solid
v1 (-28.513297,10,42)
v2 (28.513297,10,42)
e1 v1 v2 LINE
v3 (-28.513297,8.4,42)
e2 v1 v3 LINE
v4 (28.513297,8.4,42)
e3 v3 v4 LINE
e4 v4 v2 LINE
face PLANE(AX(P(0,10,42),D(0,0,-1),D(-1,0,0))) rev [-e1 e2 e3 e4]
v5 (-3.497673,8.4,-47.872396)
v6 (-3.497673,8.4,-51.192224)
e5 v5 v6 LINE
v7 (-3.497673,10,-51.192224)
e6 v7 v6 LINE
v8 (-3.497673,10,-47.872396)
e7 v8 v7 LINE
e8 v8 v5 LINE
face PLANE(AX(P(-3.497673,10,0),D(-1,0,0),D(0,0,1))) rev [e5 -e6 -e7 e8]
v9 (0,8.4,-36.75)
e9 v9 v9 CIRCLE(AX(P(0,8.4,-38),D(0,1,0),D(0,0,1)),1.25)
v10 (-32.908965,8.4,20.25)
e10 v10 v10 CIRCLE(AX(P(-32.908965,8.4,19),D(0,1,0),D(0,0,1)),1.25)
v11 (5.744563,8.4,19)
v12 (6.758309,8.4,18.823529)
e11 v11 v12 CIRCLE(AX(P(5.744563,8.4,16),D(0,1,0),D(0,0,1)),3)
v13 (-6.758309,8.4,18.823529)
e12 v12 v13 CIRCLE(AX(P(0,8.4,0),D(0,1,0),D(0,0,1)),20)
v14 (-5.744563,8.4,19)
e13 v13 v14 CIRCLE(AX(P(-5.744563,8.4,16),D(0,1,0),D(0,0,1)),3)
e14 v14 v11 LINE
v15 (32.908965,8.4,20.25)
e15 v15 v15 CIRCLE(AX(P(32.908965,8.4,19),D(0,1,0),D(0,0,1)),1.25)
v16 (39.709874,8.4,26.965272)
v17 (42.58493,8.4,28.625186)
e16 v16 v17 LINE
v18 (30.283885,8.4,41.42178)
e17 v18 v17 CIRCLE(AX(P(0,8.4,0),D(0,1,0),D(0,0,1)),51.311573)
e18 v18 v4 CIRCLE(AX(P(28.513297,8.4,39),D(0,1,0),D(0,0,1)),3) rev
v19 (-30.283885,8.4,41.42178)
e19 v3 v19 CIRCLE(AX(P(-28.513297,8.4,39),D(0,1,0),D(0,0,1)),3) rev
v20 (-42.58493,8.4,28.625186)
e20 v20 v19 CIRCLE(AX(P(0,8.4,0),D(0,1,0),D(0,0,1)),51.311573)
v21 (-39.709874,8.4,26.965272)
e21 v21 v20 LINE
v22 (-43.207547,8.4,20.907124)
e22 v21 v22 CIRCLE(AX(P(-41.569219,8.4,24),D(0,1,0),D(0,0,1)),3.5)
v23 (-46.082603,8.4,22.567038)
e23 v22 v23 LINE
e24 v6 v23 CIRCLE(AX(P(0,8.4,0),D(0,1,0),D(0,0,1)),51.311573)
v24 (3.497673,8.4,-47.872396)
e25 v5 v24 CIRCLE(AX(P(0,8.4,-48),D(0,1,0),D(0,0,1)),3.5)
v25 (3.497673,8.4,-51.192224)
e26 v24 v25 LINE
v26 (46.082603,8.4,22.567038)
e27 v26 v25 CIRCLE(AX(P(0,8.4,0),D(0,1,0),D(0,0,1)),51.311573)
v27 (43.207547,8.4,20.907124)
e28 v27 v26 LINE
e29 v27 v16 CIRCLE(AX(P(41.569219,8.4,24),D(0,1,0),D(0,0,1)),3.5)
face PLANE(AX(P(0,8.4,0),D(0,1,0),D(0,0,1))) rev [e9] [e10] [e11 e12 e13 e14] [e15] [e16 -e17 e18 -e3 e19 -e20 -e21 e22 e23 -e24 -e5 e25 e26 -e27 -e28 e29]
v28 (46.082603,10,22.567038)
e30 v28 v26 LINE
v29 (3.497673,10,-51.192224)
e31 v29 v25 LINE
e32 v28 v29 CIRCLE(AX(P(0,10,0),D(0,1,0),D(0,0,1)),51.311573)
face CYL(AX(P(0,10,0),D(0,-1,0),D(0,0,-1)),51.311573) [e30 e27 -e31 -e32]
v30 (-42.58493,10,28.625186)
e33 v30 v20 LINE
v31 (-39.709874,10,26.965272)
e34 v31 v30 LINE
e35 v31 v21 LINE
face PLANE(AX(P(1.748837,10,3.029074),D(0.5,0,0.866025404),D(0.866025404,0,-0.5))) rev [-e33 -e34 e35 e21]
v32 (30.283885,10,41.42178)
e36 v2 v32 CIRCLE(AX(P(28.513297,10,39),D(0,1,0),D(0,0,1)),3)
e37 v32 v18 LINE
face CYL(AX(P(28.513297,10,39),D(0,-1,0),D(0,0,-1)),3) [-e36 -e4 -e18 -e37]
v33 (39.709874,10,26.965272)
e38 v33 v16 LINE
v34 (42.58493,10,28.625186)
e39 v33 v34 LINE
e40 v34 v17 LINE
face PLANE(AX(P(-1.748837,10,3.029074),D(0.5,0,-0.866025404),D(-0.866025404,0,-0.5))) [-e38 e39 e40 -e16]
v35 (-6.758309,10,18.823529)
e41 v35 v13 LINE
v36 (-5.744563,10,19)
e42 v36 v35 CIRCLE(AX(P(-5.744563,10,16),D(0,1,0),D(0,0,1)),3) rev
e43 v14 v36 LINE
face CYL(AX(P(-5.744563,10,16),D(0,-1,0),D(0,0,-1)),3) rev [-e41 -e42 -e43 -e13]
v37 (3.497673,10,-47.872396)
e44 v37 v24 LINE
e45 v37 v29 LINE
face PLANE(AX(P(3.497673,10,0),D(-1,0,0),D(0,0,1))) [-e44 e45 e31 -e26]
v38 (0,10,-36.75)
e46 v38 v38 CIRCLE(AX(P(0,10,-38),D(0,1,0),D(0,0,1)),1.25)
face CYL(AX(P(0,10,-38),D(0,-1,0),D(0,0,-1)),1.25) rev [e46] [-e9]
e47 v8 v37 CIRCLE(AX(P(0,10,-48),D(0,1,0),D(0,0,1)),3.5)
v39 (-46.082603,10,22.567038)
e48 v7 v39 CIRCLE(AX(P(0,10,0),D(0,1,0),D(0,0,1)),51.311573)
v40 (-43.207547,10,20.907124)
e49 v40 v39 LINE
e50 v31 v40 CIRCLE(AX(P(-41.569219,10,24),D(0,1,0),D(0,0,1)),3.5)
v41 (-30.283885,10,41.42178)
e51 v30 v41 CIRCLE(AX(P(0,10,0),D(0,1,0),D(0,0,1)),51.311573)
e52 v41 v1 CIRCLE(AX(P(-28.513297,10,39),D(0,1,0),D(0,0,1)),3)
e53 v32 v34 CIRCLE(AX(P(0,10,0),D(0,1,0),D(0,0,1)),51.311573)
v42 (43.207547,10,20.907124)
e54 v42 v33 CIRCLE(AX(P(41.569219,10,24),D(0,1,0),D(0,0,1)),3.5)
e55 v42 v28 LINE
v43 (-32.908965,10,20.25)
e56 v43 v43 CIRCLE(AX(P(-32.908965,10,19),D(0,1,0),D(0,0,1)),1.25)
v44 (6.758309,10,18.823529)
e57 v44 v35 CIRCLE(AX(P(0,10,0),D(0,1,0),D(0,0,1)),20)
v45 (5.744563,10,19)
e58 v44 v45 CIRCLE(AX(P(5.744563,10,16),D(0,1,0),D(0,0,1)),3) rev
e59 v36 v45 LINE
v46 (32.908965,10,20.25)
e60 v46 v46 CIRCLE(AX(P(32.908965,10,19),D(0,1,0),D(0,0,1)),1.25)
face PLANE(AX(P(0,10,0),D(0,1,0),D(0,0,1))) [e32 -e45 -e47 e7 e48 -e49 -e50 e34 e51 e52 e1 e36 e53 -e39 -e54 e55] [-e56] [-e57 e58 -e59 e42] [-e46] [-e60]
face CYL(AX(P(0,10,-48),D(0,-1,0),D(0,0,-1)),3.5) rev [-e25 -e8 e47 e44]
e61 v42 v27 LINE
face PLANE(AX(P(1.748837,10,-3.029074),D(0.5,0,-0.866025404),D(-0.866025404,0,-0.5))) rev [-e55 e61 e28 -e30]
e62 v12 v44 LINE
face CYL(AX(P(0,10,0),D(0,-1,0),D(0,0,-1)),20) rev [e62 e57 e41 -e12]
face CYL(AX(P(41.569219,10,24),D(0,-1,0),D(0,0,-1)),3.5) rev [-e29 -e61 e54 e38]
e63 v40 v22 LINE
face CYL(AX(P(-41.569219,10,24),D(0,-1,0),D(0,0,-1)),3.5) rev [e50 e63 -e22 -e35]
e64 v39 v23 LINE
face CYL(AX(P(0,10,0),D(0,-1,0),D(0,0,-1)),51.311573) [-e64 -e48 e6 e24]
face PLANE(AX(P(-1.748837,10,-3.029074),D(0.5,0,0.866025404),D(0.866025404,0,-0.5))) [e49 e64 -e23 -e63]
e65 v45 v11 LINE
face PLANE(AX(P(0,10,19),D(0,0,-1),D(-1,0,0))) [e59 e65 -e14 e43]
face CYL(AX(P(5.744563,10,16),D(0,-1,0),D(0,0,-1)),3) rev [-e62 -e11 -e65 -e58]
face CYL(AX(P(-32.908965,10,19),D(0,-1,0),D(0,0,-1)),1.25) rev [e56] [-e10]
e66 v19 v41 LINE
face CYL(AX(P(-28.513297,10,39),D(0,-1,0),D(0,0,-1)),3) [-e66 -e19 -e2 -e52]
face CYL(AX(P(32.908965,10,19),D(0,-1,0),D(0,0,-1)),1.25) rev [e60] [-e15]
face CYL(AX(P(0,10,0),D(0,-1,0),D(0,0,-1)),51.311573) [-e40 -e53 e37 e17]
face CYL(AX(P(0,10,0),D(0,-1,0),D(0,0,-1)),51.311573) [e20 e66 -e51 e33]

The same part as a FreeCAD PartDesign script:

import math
import FreeCAD as App
import Part
import Sketcher
Q = App.Units.Quantity


def edges_at(feature, points):
    """Names of the edges that pass closest to the given points."""
    edges = feature.Shape.Edges
    near = lambda p: min(range(len(edges)), key=lambda i: edges[i].distToShape(Part.Vertex(*p))[0])
    return sorted({f"Edge{near(p) + 1}" for p in points})

doc = App.newDocument("Part")
body = doc.addObject("PartDesign::Body", "Body")

# Sketch on XZ plane
sketch1 = body.newObject("Sketcher::SketchObject", "Sketch")
sketch1.AttachmentSupport = (doc.getObject("XZ_Plane"), [""])
sketch1.MapMode = "FlatFace"
sketch1.AttachmentOffset = App.Placement(App.Vector(0, 0, -8.4), App.Rotation())
sketch1.addGeometry([
    Part.ArcOfCircle(Part.Circle(App.Vector(0, 0, 0), App.Vector(0, 0, 1), 51.311573), math.radians(125.06221), math.radians(146.09138)),  # 0
    Part.LineSegment(App.Vector(-29.476729, 42, 0), App.Vector(29.476729, 42, 0)),  # 1
    Part.ArcOfCircle(Part.Circle(App.Vector(0, 0, 0), App.Vector(0, 0, 1), 51.311573), math.radians(33.90862), math.radians(54.93779)),  # 2
    Part.LineSegment(App.Vector(42.58493, 28.625186, 0), App.Vector(39.709874, 26.965272, 0)),  # 3
    Part.ArcOfCircle(Part.Circle(App.Vector(41.569219, 24, 0), App.Vector(0, 0, 1), 3.5), math.radians(122.089372), math.radians(297.910628)),  # 4
    Part.LineSegment(App.Vector(43.207547, 20.907124, 0), App.Vector(46.082603, 22.567038, 0)),  # 5
    Part.ArcOfCircle(Part.Circle(App.Vector(0, 0, 0), App.Vector(0, 0, 1), 51.311573), math.radians(-86.09138), math.radians(26.09138)),  # 6
    Part.LineSegment(App.Vector(3.497673, -51.192224, 0), App.Vector(3.497673, -47.872396, 0)),  # 7
    Part.ArcOfCircle(Part.Circle(App.Vector(0, -48, 0), App.Vector(0, 0, 1), 3.5), math.radians(2.089372), math.radians(177.910628)),  # 8
    Part.LineSegment(App.Vector(-3.497673, -47.872396, 0), App.Vector(-3.497673, -51.192224, 0)),  # 9
    Part.ArcOfCircle(Part.Circle(App.Vector(0, 0, 0), App.Vector(0, 0, 1), 51.311573), math.radians(153.90862), math.radians(266.09138)),  # 10
    Part.LineSegment(App.Vector(-46.082603, 22.567038, 0), App.Vector(-43.207547, 20.907124, 0)),  # 11
    Part.ArcOfCircle(Part.Circle(App.Vector(-41.569219, 24, 0), App.Vector(0, 0, 1), 3.5), math.radians(-117.910628), math.radians(57.910628)),  # 12
    Part.LineSegment(App.Vector(-39.709874, 26.965272, 0), App.Vector(-42.58493, 28.625186, 0)),  # 13
    Part.Circle(App.Vector(-32.908965, 19, 0), App.Vector(0, 0, 1), 1.25),  # 14
    Part.Circle(App.Vector(32.908965, 19, 0), App.Vector(0, 0, 1), 1.25),  # 15
    Part.ArcOfCircle(Part.Circle(App.Vector(0, 0, 0), App.Vector(0, 0, 1), 20), math.radians(108.194872), math.radians(431.805128)),  # 16
    Part.LineSegment(App.Vector(6.244998, 19, 0), App.Vector(-6.244998, 19, 0)),  # 17
    Part.Circle(App.Vector(0, -38, 0), App.Vector(0, 0, 1), 1.25),  # 18
], False)
sketch1.addConstraint([
    Sketcher.Constraint("Coincident", 0, 1, 1, 1),
    Sketcher.Constraint("Coincident", 1, 2, 2, 2),
    Sketcher.Constraint("Coincident", 2, 1, 3, 1),
    Sketcher.Constraint("Coincident", 3, 2, 4, 1),
    Sketcher.Constraint("Coincident", 4, 2, 5, 1),
    Sketcher.Constraint("Coincident", 5, 2, 6, 2),
    Sketcher.Constraint("Coincident", 6, 1, 7, 1),
    Sketcher.Constraint("Coincident", 7, 2, 8, 1),
    Sketcher.Constraint("Coincident", 8, 2, 9, 1),
    Sketcher.Constraint("Coincident", 9, 2, 10, 2),
    Sketcher.Constraint("Coincident", 10, 1, 11, 1),
    Sketcher.Constraint("Coincident", 11, 2, 12, 1),
    Sketcher.Constraint("Coincident", 12, 2, 13, 1),
    Sketcher.Constraint("Coincident", 13, 2, 0, 2),
    Sketcher.Constraint("Coincident", 16, 1, 17, 2),
    Sketcher.Constraint("Coincident", 17, 1, 16, 2),
    Sketcher.Constraint("Horizontal", 1),
    Sketcher.Constraint("Vertical", 7),
    Sketcher.Constraint("Vertical", 9),
    Sketcher.Constraint("Horizontal", 17),
    Sketcher.Constraint("Coincident", 0, 3, -1, 1),
    Sketcher.Constraint("Coincident", 2, 3, -1, 1),
    Sketcher.Constraint("Coincident", 6, 3, -1, 1),
    Sketcher.Constraint("Coincident", 10, 3, -1, 1),
    Sketcher.Constraint("Coincident", 16, 3, -1, 1),
    Sketcher.Constraint("Equal", 0, 2),
    Sketcher.Constraint("Equal", 2, 6),
    Sketcher.Constraint("Equal", 4, 8),
    Sketcher.Constraint("Equal", 6, 10),
    Sketcher.Constraint("Equal", 8, 12),
    Sketcher.Constraint("Equal", 14, 15),
    Sketcher.Constraint("Equal", 15, 18),
    Sketcher.Constraint("Symmetric", 4, 3, 12, 3, -2),
    Sketcher.Constraint("Symmetric", 14, 3, 15, 3, -2),
    Sketcher.Constraint("Symmetric", 7, 2, 8, 2, -2),
    Sketcher.Constraint("PointOnObject", 18, 3, -2),
    Sketcher.Constraint("Parallel", 3, 5),
    Sketcher.Constraint("Parallel", 11, 13),
    Sketcher.Constraint("Horizontal", 5, 2, 10, 1),
    Sketcher.Constraint("Horizontal", 4, 2, 11, 2),
    Sketcher.Constraint("Horizontal", 3, 2, 12, 2),
    Sketcher.Constraint("Horizontal", 15, 3, 16, 1),
    Sketcher.Constraint("Equal", 3, 5),
    Sketcher.Constraint("Radius", 16, 20.0),
    Sketcher.Constraint("Diameter", 14, 2.5),
    Sketcher.Constraint("Radius", 4, 3.5),
    Sketcher.Constraint("Angle", 3, Q("-150 deg")),
    Sketcher.Constraint("DistanceY", -1, 1, 4, 3, 24.0),
    Sketcher.Constraint("DistanceY", 8, 3, -1, 1, 48.0),
    Sketcher.Constraint("DistanceY", -1, 1, 14, 3, 19.0),
    Sketcher.Constraint("DistanceY", 18, 3, -1, 1, 38.0),
    Sketcher.Constraint("DistanceY", -1, 1, 0, 1, 42.0),
    Sketcher.Constraint("Radius", 0, 51.311573),
    Sketcher.Constraint("DistanceY", 7, 1, 7, 2, 3.319828),
    Sketcher.Constraint("DistanceX", 1, 2, 2, 1, 13.108201),
    Sketcher.Constraint("Distance", 3, 3.319828),
    Sketcher.Constraint("DistanceX", 15, 3, 3, 2, 6.800909),
])
pad1 = body.newObject("PartDesign::Pad", "Pad")
pad1.Profile = sketch1
pad1.Length = 1.6
pad1.Reversed = True
doc.recompute()

fillet = body.newObject("PartDesign::Fillet", "Fillet")
fillet.Base = (pad1, edges_at(pad1, [
    (-29.477, 9.2, 42),
    (29.477, 9.2, 42),
    (-6.245, 9.2, 19),
    (6.245, 9.2, 19),
]))
fillet.Radius = 3

doc.recompute()
